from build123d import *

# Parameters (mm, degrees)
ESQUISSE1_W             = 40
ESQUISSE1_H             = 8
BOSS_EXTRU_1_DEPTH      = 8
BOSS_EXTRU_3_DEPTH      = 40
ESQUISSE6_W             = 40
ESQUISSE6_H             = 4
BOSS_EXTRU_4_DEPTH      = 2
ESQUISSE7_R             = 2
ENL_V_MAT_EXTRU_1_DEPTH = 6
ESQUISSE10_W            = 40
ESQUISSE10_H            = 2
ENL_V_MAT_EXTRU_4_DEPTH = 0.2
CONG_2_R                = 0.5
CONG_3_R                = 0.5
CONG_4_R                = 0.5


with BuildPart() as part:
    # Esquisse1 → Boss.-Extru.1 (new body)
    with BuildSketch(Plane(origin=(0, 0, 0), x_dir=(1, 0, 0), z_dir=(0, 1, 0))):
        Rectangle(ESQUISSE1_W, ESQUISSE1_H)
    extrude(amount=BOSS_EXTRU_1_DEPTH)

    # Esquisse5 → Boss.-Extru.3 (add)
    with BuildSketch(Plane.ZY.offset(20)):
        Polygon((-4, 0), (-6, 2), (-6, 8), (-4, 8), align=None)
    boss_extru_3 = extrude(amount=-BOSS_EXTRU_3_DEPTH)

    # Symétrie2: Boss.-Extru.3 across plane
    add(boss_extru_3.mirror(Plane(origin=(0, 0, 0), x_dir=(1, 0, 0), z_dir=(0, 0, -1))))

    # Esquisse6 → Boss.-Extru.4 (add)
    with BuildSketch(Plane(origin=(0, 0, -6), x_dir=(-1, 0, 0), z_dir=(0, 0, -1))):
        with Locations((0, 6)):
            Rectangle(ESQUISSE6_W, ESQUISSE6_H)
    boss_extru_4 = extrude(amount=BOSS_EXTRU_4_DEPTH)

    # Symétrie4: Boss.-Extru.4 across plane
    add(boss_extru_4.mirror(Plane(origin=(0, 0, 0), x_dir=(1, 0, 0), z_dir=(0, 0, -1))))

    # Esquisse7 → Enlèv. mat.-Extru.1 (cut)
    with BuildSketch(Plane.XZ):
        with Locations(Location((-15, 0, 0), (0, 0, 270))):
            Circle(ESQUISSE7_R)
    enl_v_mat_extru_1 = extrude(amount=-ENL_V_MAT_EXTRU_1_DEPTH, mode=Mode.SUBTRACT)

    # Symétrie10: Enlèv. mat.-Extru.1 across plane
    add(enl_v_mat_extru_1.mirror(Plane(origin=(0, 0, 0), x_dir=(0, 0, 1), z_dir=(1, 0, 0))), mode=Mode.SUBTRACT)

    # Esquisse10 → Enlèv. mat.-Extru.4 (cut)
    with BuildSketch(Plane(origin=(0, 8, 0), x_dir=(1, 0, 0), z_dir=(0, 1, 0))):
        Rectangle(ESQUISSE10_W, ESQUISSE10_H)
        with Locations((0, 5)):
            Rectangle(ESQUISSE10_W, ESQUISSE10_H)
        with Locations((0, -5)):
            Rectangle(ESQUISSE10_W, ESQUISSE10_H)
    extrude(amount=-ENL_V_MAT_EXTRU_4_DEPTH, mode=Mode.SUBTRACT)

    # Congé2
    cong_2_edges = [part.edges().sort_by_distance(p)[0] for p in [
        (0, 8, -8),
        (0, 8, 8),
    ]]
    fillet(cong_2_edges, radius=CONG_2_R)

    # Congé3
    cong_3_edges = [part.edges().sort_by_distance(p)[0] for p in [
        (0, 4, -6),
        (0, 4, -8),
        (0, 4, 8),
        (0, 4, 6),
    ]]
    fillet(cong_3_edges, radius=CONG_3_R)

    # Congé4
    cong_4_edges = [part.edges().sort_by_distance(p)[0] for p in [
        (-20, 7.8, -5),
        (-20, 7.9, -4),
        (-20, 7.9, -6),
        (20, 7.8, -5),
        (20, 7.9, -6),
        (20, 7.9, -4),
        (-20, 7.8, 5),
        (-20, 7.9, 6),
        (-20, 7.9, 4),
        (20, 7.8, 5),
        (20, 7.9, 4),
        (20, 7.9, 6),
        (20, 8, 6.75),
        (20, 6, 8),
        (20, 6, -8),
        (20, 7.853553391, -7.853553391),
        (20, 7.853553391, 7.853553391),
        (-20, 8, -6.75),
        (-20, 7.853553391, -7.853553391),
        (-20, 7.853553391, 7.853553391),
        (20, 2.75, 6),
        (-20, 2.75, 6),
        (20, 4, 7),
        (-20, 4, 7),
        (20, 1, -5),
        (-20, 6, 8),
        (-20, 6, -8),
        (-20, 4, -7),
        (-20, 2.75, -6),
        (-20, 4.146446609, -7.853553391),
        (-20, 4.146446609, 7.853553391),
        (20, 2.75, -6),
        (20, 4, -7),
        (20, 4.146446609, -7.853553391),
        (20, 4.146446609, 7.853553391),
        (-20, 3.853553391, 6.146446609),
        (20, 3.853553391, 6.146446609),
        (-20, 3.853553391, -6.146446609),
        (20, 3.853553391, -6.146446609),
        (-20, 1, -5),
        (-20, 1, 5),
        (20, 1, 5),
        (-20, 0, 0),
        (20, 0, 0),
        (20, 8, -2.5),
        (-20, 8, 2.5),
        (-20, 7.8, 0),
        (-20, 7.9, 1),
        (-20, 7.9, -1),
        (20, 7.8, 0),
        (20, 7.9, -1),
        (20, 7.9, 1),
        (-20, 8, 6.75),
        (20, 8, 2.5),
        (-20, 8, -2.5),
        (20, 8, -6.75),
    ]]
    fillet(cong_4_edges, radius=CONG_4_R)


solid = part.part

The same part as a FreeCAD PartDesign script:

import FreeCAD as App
import Part
import Sketcher


def edges_at(feature, points):
    """Names of the edges that pass closest to the given points."""
    edges = feature.Shape.Edges
    near = lambda p: min(range(len(edges)), key=lambda i: edges[i].distToShape(Part.Vertex(*p))[0])
    return sorted({f"Edge{near(p) + 1}" for p in points})


def add_polygon(sketch, points):
    """Adds a closed chain of lines whose ends are joined by coincident constraints."""
    first, n = sketch.GeometryCount, len(points)
    for a, b in zip(points, points[1:] + points[:1]):
        sketch.addGeometry(Part.LineSegment(App.Vector(*a, 0), App.Vector(*b, 0)), False)
    for i in range(n):
        sketch.addConstraint(Sketcher.Constraint("Coincident", first + i, 2, first + (i + 1) % n, 1))

doc = App.newDocument("Part")
body = doc.addObject("PartDesign::Body", "Body")

sketch1 = doc.addObject("Sketcher::SketchObject", "Sketch")
body.addObject(sketch1)
sketch1.AttachmentSupport = (doc.XZ_Plane, [""])
sketch1.MapMode = "FlatFace"
add_polygon(sketch1, [(-20, -4), (-20, 4), (20, 4), (20, -4)])
sketch1.addConstraint(Sketcher.Constraint("Vertical", 0))
sketch1.addConstraint(Sketcher.Constraint("Horizontal", 1))
sketch1.addConstraint(Sketcher.Constraint("Vertical", 2))
sketch1.addConstraint(Sketcher.Constraint("Horizontal", 3))
sketch1.addConstraint(Sketcher.Constraint("Symmetric", 0, 2, 2, 2, -1, 1))
sketch1.addConstraint(Sketcher.Constraint("DistanceX", 1, 1, 1, 2, 40.0))
sketch1.addConstraint(Sketcher.Constraint("DistanceY", 0, 1, 0, 2, 8.0))
pad1 = doc.addObject("PartDesign::Pad", "Pad")
body.addObject(pad1)
pad1.Profile = sketch1
pad1.Length = 8
pad1.Reversed = True

sketch2 = doc.addObject("Sketcher::SketchObject", "Sketch001")
body.addObject(sketch2)
sketch2.AttachmentSupport = (doc.YZ_Plane, [""])
sketch2.MapMode = "FlatFace"
sketch2.AttachmentOffset = App.Placement(App.Vector(0, 0, -20), App.Rotation())
add_polygon(sketch2, [(2, -6), (0, -4), (8, -4), (8, -6)])
sketch2.addConstraint(Sketcher.Constraint("Horizontal", 1))
sketch2.addConstraint(Sketcher.Constraint("Vertical", 2))
sketch2.addConstraint(Sketcher.Constraint("Horizontal", 3))
sketch2.addConstraint(Sketcher.Constraint("PointOnObject", 0, 2, -2))
sketch2.addConstraint(Sketcher.Constraint("DistanceX", 1, 1, 1, 2, 8.0))
sketch2.addConstraint(Sketcher.Constraint("DistanceX", 3, 2, 3, 1, 6.0))
sketch2.addConstraint(Sketcher.Constraint("DistanceY", 2, 2, 2, 1, 2.0))
sketch2.addConstraint(Sketcher.Constraint("DistanceY", 0, 2, -1, 1, 4.0))
pad2 = doc.addObject("PartDesign::Pad", "Pad001")
body.addObject(pad2)
pad2.Profile = sketch2
pad2.Length = 40
doc.recompute()

mirrored = doc.addObject("PartDesign::Mirrored", "Mirrored")
body.addObject(mirrored)
mirrored.Originals = [pad2]
mirrored.MirrorPlane = (doc.XY_Plane, [""])
body.Tip = mirrored

sketch3 = doc.addObject("Sketcher::SketchObject", "Sketch002")
body.addObject(sketch3)
sketch3.AttachmentSupport = (doc.XY_Plane, [""])
sketch3.MapMode = "FlatFace"
sketch3.AttachmentOffset = App.Placement(App.Vector(0, 0, -6), App.Rotation())
add_polygon(sketch3, [(20, 8), (20, 4), (-20, 4), (-20, 8)])
sketch3.addConstraint(Sketcher.Constraint("Vertical", 0))
sketch3.addConstraint(Sketcher.Constraint("Horizontal", 1))
sketch3.addConstraint(Sketcher.Constraint("Vertical", 2))
sketch3.addConstraint(Sketcher.Constraint("Horizontal", 3))
sketch3.addConstraint(Sketcher.Constraint("DistanceX", 1, 2, 1, 1, 40.0))
sketch3.addConstraint(Sketcher.Constraint("DistanceY", 0, 2, 0, 1, 4.0))
sketch3.addConstraint(Sketcher.Constraint("DistanceX", -1, 1, 0, 2, 20.0))
sketch3.addConstraint(Sketcher.Constraint("DistanceY", -1, 1, 0, 2, 4.0))
pad3 = doc.addObject("PartDesign::Pad", "Pad002")
body.addObject(pad3)
pad3.Profile = sketch3
pad3.Length = 2
pad3.Reversed = True
doc.recompute()

mirrored2 = doc.addObject("PartDesign::Mirrored", "Mirrored001")
body.addObject(mirrored2)
mirrored2.Originals = [pad3]
mirrored2.MirrorPlane = (doc.XY_Plane, [""])
body.Tip = mirrored2

sketch4 = doc.addObject("Sketcher::SketchObject", "Sketch003")
body.addObject(sketch4)
sketch4.AttachmentSupport = (doc.XZ_Plane, [""])
sketch4.MapMode = "FlatFace"
sketch4.addGeometry(Part.Circle(App.Vector(-15, 0, 0), App.Vector(0, 0, 1), 2), False)
sketch4.addConstraint(Sketcher.Constraint("PointOnObject", 0, 3, -1))
sketch4.addConstraint(Sketcher.Constraint("Diameter", 0, 4.0))
sketch4.addConstraint(Sketcher.Constraint("DistanceX", 0, 3, -1, 1, 15.0))
pocket1 = doc.addObject("PartDesign::Pocket", "Pocket")
body.addObject(pocket1)
pocket1.Profile = sketch4
pocket1.Length = 6
doc.recompute()

mirrored3 = doc.addObject("PartDesign::Mirrored", "Mirrored002")
body.addObject(mirrored3)
mirrored3.Originals = [pocket1]
mirrored3.MirrorPlane = (doc.YZ_Plane, [""])
body.Tip = mirrored3

sketch5 = doc.addObject("Sketcher::SketchObject", "Sketch004")
body.addObject(sketch5)
sketch5.AttachmentSupport = (doc.XZ_Plane, [""])
sketch5.MapMode = "FlatFace"
sketch5.AttachmentOffset = App.Placement(App.Vector(0, 0, -8), App.Rotation())
add_polygon(sketch5, [(-20, -1), (-20, 1), (20, 1), (20, -1)])
add_polygon(sketch5, [(-20, -6), (-20, -4), (20, -4), (20, -6)])
add_polygon(sketch5, [(-20, 4), (-20, 6), (20, 6), (20, 4)])
sketch5.addConstraint(Sketcher.Constraint("Vertical", 0))
sketch5.addConstraint(Sketcher.Constraint("Horizontal", 1))
sketch5.addConstraint(Sketcher.Constraint("Vertical", 2))
sketch5.addConstraint(Sketcher.Constraint("Horizontal", 3))
sketch5.addConstraint(Sketcher.Constraint("Vertical", 4))
sketch5.addConstraint(Sketcher.Constraint("Horizontal", 5))
sketch5.addConstraint(Sketcher.Constraint("Vertical", 6))
sketch5.addConstraint(Sketcher.Constraint("Horizontal", 7))
sketch5.addConstraint(Sketcher.Constraint("Vertical", 8))
sketch5.addConstraint(Sketcher.Constraint("Horizontal", 9))
sketch5.addConstraint(Sketcher.Constraint("Vertical", 10))
sketch5.addConstraint(Sketcher.Constraint("Horizontal", 11))
sketch5.addConstraint(Sketcher.Constraint("Symmetric", 0, 2, 2, 2, -1, 1))
sketch5.addConstraint(Sketcher.Constraint("Symmetric", 6, 2, 8, 2, -1, 1))
sketch5.addConstraint(Sketcher.Constraint("Symmetric", 4, 2, 10, 2, -1, 1))
sketch5.addConstraint(Sketcher.Constraint("Vertical", 3, 2, 4, 2))
sketch5.addConstraint(Sketcher.Constraint("Vertical", 2, 2, 5, 2))
sketch5.addConstraint(Sketcher.Constraint("Equal", 2, 4))
sketch5.addConstraint(Sketcher.Constraint("DistanceX", 1, 1, 1, 2, 40.0))
sketch5.addConstraint(Sketcher.Constraint("DistanceY", 0, 1, 0, 2, 2.0))
sketch5.addConstraint(Sketcher.Constraint("DistanceY", 4, 2, -1, 1, 4.0))
pocket2 = doc.addObject("PartDesign::Pocket", "Pocket001")
body.addObject(pocket2)
pocket2.Profile = sketch5
pocket2.Length = 0.2
pocket2.Reversed = True
doc.recompute()

fillet = doc.addObject("PartDesign::Fillet", "Fillet")
body.addObject(fillet)
fillet.Base = (pocket2, edges_at(pocket2, [(0, 8, -8), (0, 8, 8)]))
fillet.Radius = 0.5
doc.recompute()

fillet2 = doc.addObject("PartDesign::Fillet", "Fillet001")
body.addObject(fillet2)
fillet2.Base = (fillet, edges_at(fillet, [
    (0, 4, -6),
    (0, 4, -8),
    (0, 4, 8),
    (0, 4, 6),
]))
fillet2.Radius = 0.5
doc.recompute()

fillet3 = doc.addObject("PartDesign::Fillet", "Fillet002")
body.addObject(fillet3)
fillet3.Base = (fillet2, edges_at(fillet2, [
    (-20, 7.8, -5),
    (-20, 7.9, -4),
    (-20, 7.9, -6),
    (20, 7.8, -5),
    (20, 7.9, -6),
    (20, 7.9, -4),
    (-20, 7.8, 5),
    (-20, 7.9, 6),
    (-20, 7.9, 4),
    (20, 7.8, 5),
    (20, 7.9, 4),
    (20, 7.9, 6),
    (20, 8, 6.75),
    (20, 6, 8),
    (20, 6, -8),
    (20, 7.854, -7.854),
    (20, 7.854, 7.854),
    (-20, 8, -6.75),
    (-20, 7.854, -7.854),
    (-20, 7.854, 7.854),
    (20, 2.75, 6),
    (-20, 2.75, 6),
    (20, 4, 7),
    (-20, 4, 7),
    (20, 1, -5),
    (-20, 6, 8),
    (-20, 6, -8),
    (-20, 4, -7),
    (-20, 2.75, -6),
    (-20, 4.146, -7.854),
    (-20, 4.146, 7.854),
    (20, 2.75, -6),
    (20, 4, -7),
    (20, 4.146, -7.854),
    (20, 4.146, 7.854),
    (-20, 3.854, 6.146),
    (20, 3.854, 6.146),
    (-20, 3.854, -6.146),
    (20, 3.854, -6.146),
    (-20, 1, -5),
    (-20, 1, 5),
    (20, 1, 5),
    (-20, 0, 0),
    (20, 0, 0),
    (20, 8, -2.5),
    (-20, 8, 2.5),
    (-20, 7.8, 0),
    (-20, 7.9, 1),
    (-20, 7.9, -1),
    (20, 7.8, 0),
    (20, 7.9, -1),
    (20, 7.9, 1),
    (-20, 8, 6.75),
    (20, 8, 2.5),
    (-20, 8, -2.5),
    (20, 8, -6.75),
]))
fillet3.Radius = 0.5

doc.recompute()
